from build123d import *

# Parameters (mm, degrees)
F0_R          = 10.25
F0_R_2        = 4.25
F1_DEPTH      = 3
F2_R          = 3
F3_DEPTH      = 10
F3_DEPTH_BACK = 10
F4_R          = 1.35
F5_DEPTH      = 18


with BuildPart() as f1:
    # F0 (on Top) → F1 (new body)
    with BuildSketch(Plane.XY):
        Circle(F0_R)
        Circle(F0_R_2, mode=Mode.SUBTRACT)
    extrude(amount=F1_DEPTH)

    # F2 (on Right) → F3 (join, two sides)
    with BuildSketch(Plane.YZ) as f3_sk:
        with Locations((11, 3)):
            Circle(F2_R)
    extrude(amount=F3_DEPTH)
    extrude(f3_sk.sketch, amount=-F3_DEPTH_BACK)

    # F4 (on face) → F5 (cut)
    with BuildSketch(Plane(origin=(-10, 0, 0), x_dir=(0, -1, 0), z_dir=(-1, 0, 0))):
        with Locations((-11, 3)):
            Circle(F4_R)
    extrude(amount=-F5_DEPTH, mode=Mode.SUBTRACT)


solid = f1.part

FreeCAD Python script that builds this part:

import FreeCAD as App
import Part
import Sketcher
Q = App.Units.Quantity

doc = App.newDocument("Part")
body = doc.addObject("PartDesign::Body", "Body")

# Sketch on XY plane
sketch1 = doc.addObject("Sketcher::SketchObject", "Sketch")
body.addObject(sketch1)
sketch1.AttachmentSupport = (doc.XY_Plane, [""])
sketch1.MapMode = "FlatFace"
sketch1.addGeometry([
    Part.Circle(App.Vector(0, 0, 0), App.Vector(0, 0, 1), 10.2),
    Part.Circle(App.Vector(0, 0, 0), App.Vector(0, 0, 1), 4.2),
], False)
sketch1.addConstraint([
    Sketcher.Constraint("Coincident", 0, 3, -1, 1),
    Sketcher.Constraint("Coincident", 1, 3, -1, 1),
    Sketcher.Constraint("Diameter", 0, Q("20.5 mm")),
    Sketcher.Constraint("Diameter", 1, Q("8.5 mm")),
])
pad1 = doc.addObject("PartDesign::Pad", "Pad")
body.addObject(pad1)
pad1.Profile = sketch1
pad1.Length = 3

# Sketch on YZ plane
sketch2 = doc.addObject("Sketcher::SketchObject", "Sketch001")
body.addObject(sketch2)
sketch2.AttachmentSupport = (doc.YZ_Plane, [""])
sketch2.MapMode = "FlatFace"
sketch2.addGeometry(Part.Circle(App.Vector(11, 3, 0), App.Vector(0, 0, 1), 3), False)
sketch2.addConstraint([
    Sketcher.Constraint("Diameter", 0, Q("6 mm")),
    Sketcher.Constraint("DistanceX", -1, 1, 0, 3, Q("11 mm")),
    Sketcher.Constraint("DistanceY", -1, 1, 0, 3, Q("3 mm")),
])
pad2 = doc.addObject("PartDesign::Pad", "Pad001")
body.addObject(pad2)
pad2.Profile = sketch2
pad2.Type = "TwoLengths"
pad2.Length = 10
pad2.Length2 = 10

# Sketch on YZ plane
sketch3 = doc.addObject("Sketcher::SketchObject", "Sketch002")
body.addObject(sketch3)
sketch3.AttachmentSupport = (doc.YZ_Plane, [""])
sketch3.MapMode = "FlatFace"
sketch3.AttachmentOffset = App.Placement(App.Vector(0, 0, -10), App.Rotation())
sketch3.addGeometry(Part.Circle(App.Vector(11, 3, 0), App.Vector(0, 0, 1), 1.4), False)
sketch3.addConstraint([
    Sketcher.Constraint("Diameter", 0, Q("2.7 mm")),
    Sketcher.Constraint("DistanceX", -1, 1, 0, 3, Q("11 mm")),
    Sketcher.Constraint("DistanceY", -1, 1, 0, 3, Q("3 mm")),
])
pocket1 = doc.addObject("PartDesign::Pocket", "Pocket")
body.addObject(pocket1)
pocket1.Profile = sketch3
pocket1.Length = 18
pocket1.Reversed = True

doc.recompute()
